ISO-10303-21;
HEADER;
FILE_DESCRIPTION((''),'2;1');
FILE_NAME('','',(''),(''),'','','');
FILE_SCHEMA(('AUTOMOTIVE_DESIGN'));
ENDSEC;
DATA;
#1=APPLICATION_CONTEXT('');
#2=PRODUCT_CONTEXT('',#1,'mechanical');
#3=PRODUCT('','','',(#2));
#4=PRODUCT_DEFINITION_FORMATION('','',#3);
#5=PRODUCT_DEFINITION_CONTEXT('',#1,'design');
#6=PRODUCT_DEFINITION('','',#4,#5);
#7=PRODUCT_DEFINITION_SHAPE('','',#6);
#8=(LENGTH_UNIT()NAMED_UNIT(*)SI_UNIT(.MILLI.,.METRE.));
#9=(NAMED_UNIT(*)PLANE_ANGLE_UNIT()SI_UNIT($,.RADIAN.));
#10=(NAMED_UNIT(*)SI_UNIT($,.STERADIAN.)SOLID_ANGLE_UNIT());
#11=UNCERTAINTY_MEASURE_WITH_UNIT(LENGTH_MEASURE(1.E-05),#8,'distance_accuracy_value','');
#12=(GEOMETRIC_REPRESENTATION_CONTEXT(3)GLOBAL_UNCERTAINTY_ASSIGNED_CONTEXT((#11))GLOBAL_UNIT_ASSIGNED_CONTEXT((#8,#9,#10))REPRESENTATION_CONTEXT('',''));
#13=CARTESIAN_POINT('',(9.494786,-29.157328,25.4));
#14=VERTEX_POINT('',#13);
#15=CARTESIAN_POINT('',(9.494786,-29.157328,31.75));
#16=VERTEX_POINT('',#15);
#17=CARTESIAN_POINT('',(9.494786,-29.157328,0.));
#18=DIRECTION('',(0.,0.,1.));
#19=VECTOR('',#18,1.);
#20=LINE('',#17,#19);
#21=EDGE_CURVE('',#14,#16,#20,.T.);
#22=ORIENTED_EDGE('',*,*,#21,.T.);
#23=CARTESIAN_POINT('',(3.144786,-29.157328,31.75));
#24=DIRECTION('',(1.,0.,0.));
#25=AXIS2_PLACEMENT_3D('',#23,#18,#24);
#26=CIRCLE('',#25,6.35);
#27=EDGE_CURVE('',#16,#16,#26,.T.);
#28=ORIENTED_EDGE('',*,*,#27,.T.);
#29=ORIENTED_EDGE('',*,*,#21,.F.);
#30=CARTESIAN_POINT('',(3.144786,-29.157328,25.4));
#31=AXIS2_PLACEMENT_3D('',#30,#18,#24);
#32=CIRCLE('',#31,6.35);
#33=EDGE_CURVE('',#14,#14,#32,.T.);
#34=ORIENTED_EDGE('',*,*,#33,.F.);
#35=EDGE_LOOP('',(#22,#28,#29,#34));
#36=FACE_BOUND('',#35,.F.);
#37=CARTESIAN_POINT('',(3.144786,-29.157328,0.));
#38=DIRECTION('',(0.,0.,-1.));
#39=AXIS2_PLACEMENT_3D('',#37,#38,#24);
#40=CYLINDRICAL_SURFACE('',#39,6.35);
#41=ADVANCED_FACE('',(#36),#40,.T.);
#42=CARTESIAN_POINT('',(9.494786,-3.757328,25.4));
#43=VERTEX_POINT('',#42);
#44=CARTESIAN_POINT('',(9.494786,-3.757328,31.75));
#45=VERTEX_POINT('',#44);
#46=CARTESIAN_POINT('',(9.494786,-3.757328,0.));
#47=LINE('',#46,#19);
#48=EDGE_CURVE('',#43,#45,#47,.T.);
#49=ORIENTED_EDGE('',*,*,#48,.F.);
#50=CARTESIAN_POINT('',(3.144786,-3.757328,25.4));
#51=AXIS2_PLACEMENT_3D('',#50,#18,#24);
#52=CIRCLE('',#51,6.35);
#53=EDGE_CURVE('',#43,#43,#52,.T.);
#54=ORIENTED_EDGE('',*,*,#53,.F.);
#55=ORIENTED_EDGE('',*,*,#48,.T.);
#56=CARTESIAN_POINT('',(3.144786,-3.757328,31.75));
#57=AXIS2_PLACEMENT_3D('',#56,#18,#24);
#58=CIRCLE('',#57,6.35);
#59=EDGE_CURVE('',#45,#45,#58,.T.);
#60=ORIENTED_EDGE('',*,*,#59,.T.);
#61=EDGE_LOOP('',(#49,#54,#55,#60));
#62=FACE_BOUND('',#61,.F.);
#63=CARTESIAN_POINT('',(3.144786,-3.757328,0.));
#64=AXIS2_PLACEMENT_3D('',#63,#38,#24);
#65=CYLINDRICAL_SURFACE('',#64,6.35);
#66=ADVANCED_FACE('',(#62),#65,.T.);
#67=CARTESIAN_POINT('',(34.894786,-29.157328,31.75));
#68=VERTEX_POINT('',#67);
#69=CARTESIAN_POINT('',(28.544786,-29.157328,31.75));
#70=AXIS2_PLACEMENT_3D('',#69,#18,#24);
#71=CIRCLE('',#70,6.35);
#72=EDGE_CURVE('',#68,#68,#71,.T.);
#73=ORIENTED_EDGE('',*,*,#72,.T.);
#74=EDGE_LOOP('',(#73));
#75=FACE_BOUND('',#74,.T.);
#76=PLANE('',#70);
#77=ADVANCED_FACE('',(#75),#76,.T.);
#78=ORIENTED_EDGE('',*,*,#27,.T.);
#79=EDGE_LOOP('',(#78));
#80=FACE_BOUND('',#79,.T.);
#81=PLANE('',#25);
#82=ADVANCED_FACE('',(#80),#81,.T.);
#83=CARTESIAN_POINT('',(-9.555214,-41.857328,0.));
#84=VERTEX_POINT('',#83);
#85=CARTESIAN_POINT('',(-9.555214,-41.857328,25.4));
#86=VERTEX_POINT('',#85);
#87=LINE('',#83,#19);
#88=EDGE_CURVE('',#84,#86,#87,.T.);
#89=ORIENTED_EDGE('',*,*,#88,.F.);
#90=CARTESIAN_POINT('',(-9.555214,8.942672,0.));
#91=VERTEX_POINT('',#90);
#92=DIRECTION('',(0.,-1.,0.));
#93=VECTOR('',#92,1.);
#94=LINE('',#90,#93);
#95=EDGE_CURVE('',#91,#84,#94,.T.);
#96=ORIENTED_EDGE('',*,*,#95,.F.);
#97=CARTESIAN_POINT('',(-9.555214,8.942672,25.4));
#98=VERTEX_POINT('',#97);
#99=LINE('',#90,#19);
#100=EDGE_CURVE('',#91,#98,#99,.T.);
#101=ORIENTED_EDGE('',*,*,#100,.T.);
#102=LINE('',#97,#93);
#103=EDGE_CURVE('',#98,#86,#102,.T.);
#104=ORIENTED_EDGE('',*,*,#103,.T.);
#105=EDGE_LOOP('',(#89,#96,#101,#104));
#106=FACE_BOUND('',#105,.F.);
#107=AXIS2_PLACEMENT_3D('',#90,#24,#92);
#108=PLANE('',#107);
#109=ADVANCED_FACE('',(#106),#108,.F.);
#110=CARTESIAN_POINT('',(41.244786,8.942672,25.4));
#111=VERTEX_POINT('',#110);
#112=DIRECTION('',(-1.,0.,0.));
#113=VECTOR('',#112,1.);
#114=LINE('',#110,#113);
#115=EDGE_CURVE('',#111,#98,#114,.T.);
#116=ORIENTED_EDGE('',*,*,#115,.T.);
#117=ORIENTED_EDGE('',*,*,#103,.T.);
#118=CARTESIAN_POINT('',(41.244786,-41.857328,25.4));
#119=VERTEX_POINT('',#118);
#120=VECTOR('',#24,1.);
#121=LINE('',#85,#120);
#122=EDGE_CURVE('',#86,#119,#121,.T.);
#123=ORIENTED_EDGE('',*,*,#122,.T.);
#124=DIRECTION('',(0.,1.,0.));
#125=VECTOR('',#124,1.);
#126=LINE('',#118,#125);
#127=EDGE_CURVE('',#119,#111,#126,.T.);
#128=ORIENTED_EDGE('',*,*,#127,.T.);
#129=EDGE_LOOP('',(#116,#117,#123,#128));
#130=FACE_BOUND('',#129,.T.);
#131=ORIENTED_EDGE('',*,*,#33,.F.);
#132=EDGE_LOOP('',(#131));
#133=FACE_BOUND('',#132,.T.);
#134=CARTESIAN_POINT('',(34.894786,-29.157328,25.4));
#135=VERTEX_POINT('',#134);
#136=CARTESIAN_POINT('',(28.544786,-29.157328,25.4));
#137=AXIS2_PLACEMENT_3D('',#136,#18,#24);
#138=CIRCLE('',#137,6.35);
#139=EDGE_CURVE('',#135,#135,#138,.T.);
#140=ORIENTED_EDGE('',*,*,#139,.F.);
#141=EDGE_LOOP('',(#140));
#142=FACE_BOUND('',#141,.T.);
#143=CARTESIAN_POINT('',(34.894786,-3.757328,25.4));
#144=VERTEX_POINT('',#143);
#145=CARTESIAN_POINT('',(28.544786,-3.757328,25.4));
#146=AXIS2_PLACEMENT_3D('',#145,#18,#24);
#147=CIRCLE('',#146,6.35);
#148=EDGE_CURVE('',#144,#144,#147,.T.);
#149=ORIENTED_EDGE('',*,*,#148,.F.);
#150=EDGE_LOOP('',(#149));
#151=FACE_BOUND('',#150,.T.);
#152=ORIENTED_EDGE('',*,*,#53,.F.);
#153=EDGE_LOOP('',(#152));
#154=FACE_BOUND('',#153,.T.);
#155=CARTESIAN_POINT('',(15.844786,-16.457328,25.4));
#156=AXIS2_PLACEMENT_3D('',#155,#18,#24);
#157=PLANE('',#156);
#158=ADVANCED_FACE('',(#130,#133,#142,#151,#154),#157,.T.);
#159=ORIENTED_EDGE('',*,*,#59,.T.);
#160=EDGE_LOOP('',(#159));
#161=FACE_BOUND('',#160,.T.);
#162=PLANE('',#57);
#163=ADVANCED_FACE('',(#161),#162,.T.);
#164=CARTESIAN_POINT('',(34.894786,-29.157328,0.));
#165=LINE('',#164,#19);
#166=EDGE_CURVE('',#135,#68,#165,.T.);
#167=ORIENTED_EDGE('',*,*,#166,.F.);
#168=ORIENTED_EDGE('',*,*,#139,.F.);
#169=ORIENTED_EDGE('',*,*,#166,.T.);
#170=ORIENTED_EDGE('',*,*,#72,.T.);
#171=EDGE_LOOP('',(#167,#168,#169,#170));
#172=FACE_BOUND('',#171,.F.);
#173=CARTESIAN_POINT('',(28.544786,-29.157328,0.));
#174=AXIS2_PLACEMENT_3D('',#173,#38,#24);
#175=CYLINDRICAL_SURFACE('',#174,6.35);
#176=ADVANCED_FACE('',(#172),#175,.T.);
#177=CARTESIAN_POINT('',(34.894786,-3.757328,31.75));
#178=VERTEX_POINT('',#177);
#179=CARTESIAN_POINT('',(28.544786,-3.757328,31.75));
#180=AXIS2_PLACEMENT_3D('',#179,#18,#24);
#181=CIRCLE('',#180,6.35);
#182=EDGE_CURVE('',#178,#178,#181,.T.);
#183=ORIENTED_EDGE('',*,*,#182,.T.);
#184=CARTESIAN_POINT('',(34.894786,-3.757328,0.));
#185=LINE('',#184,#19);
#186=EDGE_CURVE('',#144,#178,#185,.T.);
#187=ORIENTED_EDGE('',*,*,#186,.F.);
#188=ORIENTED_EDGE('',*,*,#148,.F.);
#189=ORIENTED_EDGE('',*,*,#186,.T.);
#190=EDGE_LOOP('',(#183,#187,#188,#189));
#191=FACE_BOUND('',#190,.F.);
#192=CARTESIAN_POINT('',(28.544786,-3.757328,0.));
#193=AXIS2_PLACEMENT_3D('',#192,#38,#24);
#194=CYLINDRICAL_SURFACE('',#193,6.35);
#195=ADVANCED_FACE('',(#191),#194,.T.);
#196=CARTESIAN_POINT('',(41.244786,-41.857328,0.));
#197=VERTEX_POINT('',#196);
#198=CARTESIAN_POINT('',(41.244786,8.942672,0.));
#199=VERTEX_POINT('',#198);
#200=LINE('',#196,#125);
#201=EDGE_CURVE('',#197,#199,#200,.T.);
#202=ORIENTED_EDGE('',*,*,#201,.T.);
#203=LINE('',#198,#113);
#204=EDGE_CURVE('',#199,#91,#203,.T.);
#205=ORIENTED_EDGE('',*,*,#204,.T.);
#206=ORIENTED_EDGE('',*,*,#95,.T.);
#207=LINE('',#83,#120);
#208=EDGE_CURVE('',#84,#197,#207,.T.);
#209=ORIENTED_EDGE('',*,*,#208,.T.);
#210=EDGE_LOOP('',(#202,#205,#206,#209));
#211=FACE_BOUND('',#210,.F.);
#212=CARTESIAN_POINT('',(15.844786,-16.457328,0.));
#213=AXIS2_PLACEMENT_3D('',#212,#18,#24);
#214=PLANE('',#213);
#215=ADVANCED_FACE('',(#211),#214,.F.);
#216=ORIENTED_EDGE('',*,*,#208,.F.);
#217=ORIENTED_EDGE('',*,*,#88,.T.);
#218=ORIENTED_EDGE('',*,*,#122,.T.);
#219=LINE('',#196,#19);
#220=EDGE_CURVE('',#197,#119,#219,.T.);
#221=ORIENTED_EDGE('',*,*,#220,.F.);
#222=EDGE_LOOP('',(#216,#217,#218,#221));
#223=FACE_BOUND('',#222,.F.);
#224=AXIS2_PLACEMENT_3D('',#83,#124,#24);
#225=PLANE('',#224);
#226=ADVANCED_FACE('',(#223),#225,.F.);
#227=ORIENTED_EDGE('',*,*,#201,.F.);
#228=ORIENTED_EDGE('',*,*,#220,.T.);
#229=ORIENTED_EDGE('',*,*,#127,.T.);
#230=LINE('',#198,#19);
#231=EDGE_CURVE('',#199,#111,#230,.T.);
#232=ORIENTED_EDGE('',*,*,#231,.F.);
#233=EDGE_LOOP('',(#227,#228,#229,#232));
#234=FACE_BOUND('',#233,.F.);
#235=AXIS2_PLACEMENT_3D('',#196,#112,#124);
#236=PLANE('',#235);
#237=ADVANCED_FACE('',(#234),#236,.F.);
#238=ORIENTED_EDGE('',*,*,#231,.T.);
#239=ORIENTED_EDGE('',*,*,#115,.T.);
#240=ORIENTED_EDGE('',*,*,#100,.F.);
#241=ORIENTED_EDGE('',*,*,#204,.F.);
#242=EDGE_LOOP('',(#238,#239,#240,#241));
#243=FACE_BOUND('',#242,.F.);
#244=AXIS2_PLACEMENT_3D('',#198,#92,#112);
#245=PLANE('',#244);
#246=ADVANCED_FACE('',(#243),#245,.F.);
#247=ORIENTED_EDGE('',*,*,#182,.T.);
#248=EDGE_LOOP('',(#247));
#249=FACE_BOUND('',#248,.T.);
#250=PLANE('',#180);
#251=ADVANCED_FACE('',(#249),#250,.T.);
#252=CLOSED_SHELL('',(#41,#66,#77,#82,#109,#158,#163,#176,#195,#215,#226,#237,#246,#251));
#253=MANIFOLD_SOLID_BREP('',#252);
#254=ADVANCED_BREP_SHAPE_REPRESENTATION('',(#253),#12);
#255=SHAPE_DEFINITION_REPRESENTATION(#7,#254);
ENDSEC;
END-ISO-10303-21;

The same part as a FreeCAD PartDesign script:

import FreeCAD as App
import Part
import Sketcher
from FreeCAD import Vector
Q = App.Units.Quantity


def add_polygon(sketch, points):
    """Adds a closed chain of lines whose ends are joined by coincident constraints."""
    first, n = sketch.GeometryCount, len(points)
    for a, b in zip(points, points[1:] + points[:1]):
        sketch.addGeometry(Part.LineSegment(App.Vector(*a, 0), App.Vector(*b, 0)), False)
    for i in range(n):
        sketch.addConstraint(Sketcher.Constraint("Coincident", first + i, 2, first + (i + 1) % n, 1))

doc = App.newDocument("Part")
params = doc.addObject("Spreadsheet::Sheet", "Params")
for row, (alias, value) in enumerate([
    ("sketch1_diameter", "0.5 in"),
    ("sketch1_width", "2 in"),
    ("pad1_length", "1 in"),
    ("sketch2_diameter", "0.5 in"),
    ("pad2_length", "1.25 in"),
], start=1):
    params.set(f"A{row}", alias)
    params.set(f"B{row}", "=" + value)
    params.setAlias(f"B{row}", alias)

body = doc.addObject("PartDesign::Body", "Body")

# Sketch on XY plane
sketch1 = body.newObject("Sketcher::SketchObject", "Sketch")
sketch1.AttachmentSupport = (doc.getObject("XY_Plane"), [""])
sketch1.MapMode = "FlatFace"
add_polygon(sketch1, [(-9.555214, 8.942672), (-9.555214, -41.857328), (41.244786, -41.857328), (41.244786, 8.942672)])  # lines 0-3
sketch1.addGeometry(Part.Circle(Vector(3.144786, -29.157328, 0), Vector(0, 0, 1), 6.35), False)  # 4
sketch1.addGeometry(Part.Circle(Vector(28.544786, -29.157328, 0), Vector(0, 0, 1), 6.35), False)  # 5
sketch1.addGeometry(Part.Circle(Vector(3.144786, -3.757328, 0), Vector(0, 0, 1), 6.35), False)  # 6
sketch1.addGeometry(Part.Circle(Vector(28.544786, -3.757328, 0), Vector(0, 0, 1), 6.35), False)  # 7
sketch1.addConstraint([
    Sketcher.Constraint("Vertical", 0),
    Sketcher.Constraint("Horizontal", 1),
    Sketcher.Constraint("Vertical", 2),
    Sketcher.Constraint("Horizontal", 3),
    Sketcher.Constraint("Equal", 4, 5),
    Sketcher.Constraint("Equal", 5, 6),
    Sketcher.Constraint("Equal", 6, 7),
    Sketcher.Constraint("Horizontal", 4, 3, 5, 3),
    Sketcher.Constraint("Horizontal", 6, 3, 7, 3),
    Sketcher.Constraint("Vertical", 4, 3, 6, 3),
    Sketcher.Constraint("Vertical", 5, 3, 7, 3),
    Sketcher.Constraint("Equal", 3, 0),
    Sketcher.Constraint("Diameter", 4, Q("0.5 in")),
    Sketcher.Constraint("DistanceX", 1, 1, 1, 2, Q("2 in")),
    Sketcher.Constraint("DistanceX", 4, 3, 5, 3, Q("1 in")),
    Sketcher.Constraint("DistanceY", 4, 3, 6, 3, Q("1 in")),
    Sketcher.Constraint("DistanceX", 0, 2, 4, 3, Q("0.5 in")),
    Sketcher.Constraint("DistanceY", 0, 2, 4, 3, Q("0.5 in")),
    Sketcher.Constraint("DistanceY", 0, 2, -1, 1, 41.857328),
    Sketcher.Constraint("DistanceX", -1, 1, 4, 3, 3.144786),
])
sketch1.setExpression("Constraints[16]", "Params.sketch1_diameter")
sketch1.setExpression("Constraints[17]", "Params.sketch1_width")
pad1 = body.newObject("PartDesign::Pad", "Pad")
pad1.Profile = sketch1
pad1.setExpression("Length", "Params.pad1_length")

# Sketch on XY plane
sketch2 = body.newObject("Sketcher::SketchObject", "Sketch001")
sketch2.AttachmentSupport = (doc.getObject("XY_Plane"), [""])
sketch2.MapMode = "FlatFace"
sketch2.addGeometry([
    Part.Circle(Vector(28.544786, -29.157328, 0), Vector(0, 0, 1), 6.35),
    Part.Circle(Vector(3.144786, -3.757328, 0), Vector(0, 0, 1), 6.35),
    Part.Circle(Vector(28.544786, -3.757328, 0), Vector(0, 0, 1), 6.35),
    Part.Circle(Vector(3.144786, -29.157328, 0), Vector(0, 0, 1), 6.35),
], False)
sketch2.addConstraint([
    Sketcher.Constraint("Equal", 0, 1),
    Sketcher.Constraint("Equal", 1, 2),
    Sketcher.Constraint("Equal", 2, 3),
    Sketcher.Constraint("Horizontal", 1, 3, 2, 3),
    Sketcher.Constraint("Horizontal", 0, 3, 3, 3),
    Sketcher.Constraint("Vertical", 0, 3, 2, 3),
    Sketcher.Constraint("Vertical", 1, 3, 3, 3),
    Sketcher.Constraint("Diameter", 0, Q("0.5 in")),
    Sketcher.Constraint("DistanceX", 1, 3, 0, 3, Q("1 in")),
    Sketcher.Constraint("DistanceY", 0, 3, 1, 3, Q("1 in")),
    Sketcher.Constraint("DistanceX", -1, 1, 0, 3, 28.544786),
    Sketcher.Constraint("DistanceY", 0, 3, -1, 1, 29.157328),
])
sketch2.setExpression("Constraints[7]", "Params.sketch2_diameter")
pad2 = body.newObject("PartDesign::Pad", "Pad001")
pad2.Profile = sketch2
pad2.setExpression("Length", "Params.pad2_length")

doc.recompute()
